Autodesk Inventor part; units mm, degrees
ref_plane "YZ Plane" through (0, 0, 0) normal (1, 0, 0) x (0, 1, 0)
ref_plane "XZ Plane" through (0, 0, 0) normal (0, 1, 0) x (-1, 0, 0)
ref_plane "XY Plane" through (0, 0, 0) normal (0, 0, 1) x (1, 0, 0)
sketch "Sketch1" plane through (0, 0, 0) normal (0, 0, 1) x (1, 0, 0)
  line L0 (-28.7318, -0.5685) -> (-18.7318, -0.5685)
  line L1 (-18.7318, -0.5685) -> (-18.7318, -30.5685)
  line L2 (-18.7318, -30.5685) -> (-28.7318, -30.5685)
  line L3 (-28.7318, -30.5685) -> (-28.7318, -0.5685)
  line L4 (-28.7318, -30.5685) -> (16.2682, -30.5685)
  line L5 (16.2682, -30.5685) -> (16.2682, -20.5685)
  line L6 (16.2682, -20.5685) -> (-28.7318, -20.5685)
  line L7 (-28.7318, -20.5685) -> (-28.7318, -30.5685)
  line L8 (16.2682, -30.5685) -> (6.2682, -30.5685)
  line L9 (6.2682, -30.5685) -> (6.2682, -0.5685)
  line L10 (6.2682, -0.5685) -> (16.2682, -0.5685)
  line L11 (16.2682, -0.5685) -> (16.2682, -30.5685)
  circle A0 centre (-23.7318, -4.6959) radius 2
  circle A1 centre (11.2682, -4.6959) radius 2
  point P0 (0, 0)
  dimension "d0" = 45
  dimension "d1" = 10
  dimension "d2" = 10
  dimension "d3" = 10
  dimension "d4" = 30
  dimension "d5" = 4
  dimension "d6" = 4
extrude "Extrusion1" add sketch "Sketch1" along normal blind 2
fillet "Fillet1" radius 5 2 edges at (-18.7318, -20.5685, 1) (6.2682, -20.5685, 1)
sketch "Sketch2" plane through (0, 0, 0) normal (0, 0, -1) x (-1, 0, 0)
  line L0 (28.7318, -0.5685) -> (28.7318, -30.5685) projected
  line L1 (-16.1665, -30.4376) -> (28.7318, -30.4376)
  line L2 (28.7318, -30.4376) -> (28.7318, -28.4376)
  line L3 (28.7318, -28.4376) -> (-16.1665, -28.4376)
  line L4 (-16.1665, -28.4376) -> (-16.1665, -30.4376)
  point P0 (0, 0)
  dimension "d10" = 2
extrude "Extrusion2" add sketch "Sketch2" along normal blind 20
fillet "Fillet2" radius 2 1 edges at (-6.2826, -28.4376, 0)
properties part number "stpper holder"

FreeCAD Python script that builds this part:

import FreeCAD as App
import Part
import Sketcher

V = App.Vector


def edges_at(feature, points):
    """Names of the edges that pass closest to the given points."""
    edges = feature.Shape.Edges
    near = lambda p: min(range(len(edges)), key=lambda i: edges[i].distToShape(Part.Vertex(*p))[0])
    return sorted({f"Edge{near(p) + 1}" for p in points})


def add_polygon(sketch, points):
    """Adds a closed chain of lines whose ends are joined by coincident constraints."""
    first, n = sketch.GeometryCount, len(points)
    for a, b in zip(points, points[1:] + points[:1]):
        sketch.addGeometry(Part.LineSegment(App.Vector(*a, 0), App.Vector(*b, 0)), False)
    for i in range(n):
        sketch.addConstraint(Sketcher.Constraint("Coincident", first + i, 2, first + (i + 1) % n, 1))

doc = App.newDocument("Part")
body = doc.addObject("PartDesign::Body", "Body")

sketch1 = body.newObject("Sketcher::SketchObject", "Sketch")
sketch1.AttachmentSupport = (doc.getObject("XY_Plane"), [""])
sketch1.MapMode = "FlatFace"
add_polygon(sketch1, [(-18.7318, -0.5685), (-28.7318, -0.5685), (-28.7318, -30.5685), (16.2682, -30.5685), (16.2682, -0.5685), (6.2682, -0.5685), (6.2682, -20.5685), (-18.7318, -20.5685)])
sketch1.addGeometry(Part.Circle(V(-23.7318, -4.6959, 0), V(0, 0, 1), 2), False)
sketch1.addGeometry(Part.Circle(V(11.2682, -4.6959, 0), V(0, 0, 1), 2), False)
sketch1.addConstraint([
    Sketcher.Constraint("Horizontal", 0),
    Sketcher.Constraint("Vertical", 1),
    Sketcher.Constraint("Horizontal", 2),
    Sketcher.Constraint("Vertical", 3),
    Sketcher.Constraint("Horizontal", 4),
    Sketcher.Constraint("Vertical", 5),
    Sketcher.Constraint("Horizontal", 6),
    Sketcher.Constraint("Vertical", 7),
    Sketcher.Constraint("Equal", 8, 9),
    Sketcher.Constraint("Horizontal", 8, 3, 9, 3),
    Sketcher.Constraint("Horizontal", 0, 2, 3, 2),
    Sketcher.Constraint("Equal", 0, 4),
    Sketcher.Constraint("Diameter", 8, 4.0),
    Sketcher.Constraint("DistanceX", 0, 2, 0, 1, 10.0),
    Sketcher.Constraint("DistanceX", 2, 1, 2, 2, 45.0),
    Sketcher.Constraint("DistanceY", 1, 2, 1, 1, 30.0),
    Sketcher.Constraint("DistanceX", 8, 3, 4, 2, 30.0),
    Sketcher.Constraint("DistanceY", 2, 2, 5, 2, 10.0),
    Sketcher.Constraint("DistanceX", 7, 2, 9, 3, 30.0),
    Sketcher.Constraint("DistanceY", 8, 3, -1, 1, 4.696),
    Sketcher.Constraint("DistanceX", 8, 3, -1, 1, 23.7318),
    Sketcher.Constraint("DistanceY", 0, 2, -1, 1, 0.5685),
])
pad1 = body.newObject("PartDesign::Pad", "Pad")
pad1.Profile = sketch1
pad1.Length = 2
doc.recompute()

fillet = body.newObject("PartDesign::Fillet", "Fillet")
fillet.Base = (pad1, edges_at(pad1, [(-18.732, -20.569, 1), (6.268, -20.569, 1)]))
fillet.Radius = 5

sketch2 = body.newObject("Sketcher::SketchObject", "Sketch001")
sketch2.AttachmentSupport = (doc.getObject("XY_Plane"), [""])
sketch2.MapMode = "FlatFace"
add_polygon(sketch2, [(-28.7318, -30.4376), (-28.7318, -28.4376), (16.1665, -28.4376), (16.1665, -30.4376)])
sketch2.addConstraint([
    Sketcher.Constraint("Vertical", 0),
    Sketcher.Constraint("Horizontal", 1),
    Sketcher.Constraint("Vertical", 2),
    Sketcher.Constraint("Horizontal", 3),
    Sketcher.Constraint("DistanceY", 0, 1, 0, 2, 2.0),
    Sketcher.Constraint("DistanceX", 1, 1, 1, 2, 44.8983),
    Sketcher.Constraint("DistanceX", 0, 2, -1, 1, 28.7318),
    Sketcher.Constraint("DistanceY", 0, 2, -1, 1, 28.4376),
])
pad2 = body.newObject("PartDesign::Pad", "Pad001")
pad2.Profile = sketch2
pad2.Length = 20
pad2.Reversed = True
doc.recompute()

fillet2 = body.newObject("PartDesign::Fillet", "Fillet001")
fillet2.Base = (pad2, edges_at(pad2, [(-6.283, -28.438, 0)]))
fillet2.Radius = 2

doc.recompute()
